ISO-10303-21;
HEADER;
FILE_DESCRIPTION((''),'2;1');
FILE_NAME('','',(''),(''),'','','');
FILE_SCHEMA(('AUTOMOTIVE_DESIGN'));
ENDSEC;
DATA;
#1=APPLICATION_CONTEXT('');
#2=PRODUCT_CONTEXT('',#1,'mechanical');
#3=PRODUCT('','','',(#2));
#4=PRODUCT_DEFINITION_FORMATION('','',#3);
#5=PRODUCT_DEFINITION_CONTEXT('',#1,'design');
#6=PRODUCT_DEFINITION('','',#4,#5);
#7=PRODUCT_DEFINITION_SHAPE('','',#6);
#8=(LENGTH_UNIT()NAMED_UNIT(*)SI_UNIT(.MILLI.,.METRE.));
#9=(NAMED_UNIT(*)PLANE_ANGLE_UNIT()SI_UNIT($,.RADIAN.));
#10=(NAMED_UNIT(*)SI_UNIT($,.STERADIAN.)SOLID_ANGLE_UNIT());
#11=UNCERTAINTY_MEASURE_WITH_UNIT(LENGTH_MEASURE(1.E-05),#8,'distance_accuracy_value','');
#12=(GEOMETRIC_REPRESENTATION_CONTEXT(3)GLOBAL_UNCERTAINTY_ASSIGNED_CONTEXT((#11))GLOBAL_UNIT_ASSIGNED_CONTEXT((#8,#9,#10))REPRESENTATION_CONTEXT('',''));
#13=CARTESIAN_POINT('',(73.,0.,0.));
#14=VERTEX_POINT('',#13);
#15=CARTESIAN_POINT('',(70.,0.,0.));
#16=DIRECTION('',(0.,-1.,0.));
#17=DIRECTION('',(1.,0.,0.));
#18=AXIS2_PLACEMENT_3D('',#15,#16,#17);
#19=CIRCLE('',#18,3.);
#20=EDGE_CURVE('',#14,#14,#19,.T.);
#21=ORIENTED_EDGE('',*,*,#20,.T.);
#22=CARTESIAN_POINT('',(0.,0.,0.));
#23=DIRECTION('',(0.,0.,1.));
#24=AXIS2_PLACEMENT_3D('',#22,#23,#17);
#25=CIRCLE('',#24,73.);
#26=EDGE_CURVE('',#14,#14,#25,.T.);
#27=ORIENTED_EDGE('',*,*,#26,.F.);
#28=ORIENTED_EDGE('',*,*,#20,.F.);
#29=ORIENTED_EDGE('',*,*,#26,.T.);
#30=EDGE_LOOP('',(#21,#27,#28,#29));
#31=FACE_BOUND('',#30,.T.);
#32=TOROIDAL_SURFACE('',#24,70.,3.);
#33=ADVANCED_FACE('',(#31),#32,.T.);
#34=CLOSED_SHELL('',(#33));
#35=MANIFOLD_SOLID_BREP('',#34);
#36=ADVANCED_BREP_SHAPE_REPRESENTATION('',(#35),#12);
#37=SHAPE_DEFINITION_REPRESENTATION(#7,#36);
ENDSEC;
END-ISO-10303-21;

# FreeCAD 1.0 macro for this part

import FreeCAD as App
import Part
import Sketcher
from FreeCAD import Vector
Q = App.Units.Quantity

doc = App.newDocument("Part")
body = doc.addObject("PartDesign::Body", "Body")

sketch1 = body.newObject("Sketcher::SketchObject", "Sketch")
sketch1.AttachmentSupport = (doc.getObject("XZ_Plane"), [""])
sketch1.MapMode = "FlatFace"
sketch1.addGeometry(Part.Circle(Vector(70, 0, 0), Vector(0, 0, 1), 3), False)
sketch1.addConstraint(Sketcher.Constraint("PointOnObject", 0, 3, -1))
sketch1.addConstraint(Sketcher.Constraint("Diameter", 0, Q("6 mm")))
sketch1.addConstraint(Sketcher.Constraint("DistanceX", -1, 1, 0, 3, Q("70 mm")))
revolution = body.newObject("PartDesign::Revolution", "Revolution")
revolution.Profile = sketch1
revolution.ReferenceAxis = (sketch1, ["V_Axis"])
revolution.Angle = 360

doc.recompute()
